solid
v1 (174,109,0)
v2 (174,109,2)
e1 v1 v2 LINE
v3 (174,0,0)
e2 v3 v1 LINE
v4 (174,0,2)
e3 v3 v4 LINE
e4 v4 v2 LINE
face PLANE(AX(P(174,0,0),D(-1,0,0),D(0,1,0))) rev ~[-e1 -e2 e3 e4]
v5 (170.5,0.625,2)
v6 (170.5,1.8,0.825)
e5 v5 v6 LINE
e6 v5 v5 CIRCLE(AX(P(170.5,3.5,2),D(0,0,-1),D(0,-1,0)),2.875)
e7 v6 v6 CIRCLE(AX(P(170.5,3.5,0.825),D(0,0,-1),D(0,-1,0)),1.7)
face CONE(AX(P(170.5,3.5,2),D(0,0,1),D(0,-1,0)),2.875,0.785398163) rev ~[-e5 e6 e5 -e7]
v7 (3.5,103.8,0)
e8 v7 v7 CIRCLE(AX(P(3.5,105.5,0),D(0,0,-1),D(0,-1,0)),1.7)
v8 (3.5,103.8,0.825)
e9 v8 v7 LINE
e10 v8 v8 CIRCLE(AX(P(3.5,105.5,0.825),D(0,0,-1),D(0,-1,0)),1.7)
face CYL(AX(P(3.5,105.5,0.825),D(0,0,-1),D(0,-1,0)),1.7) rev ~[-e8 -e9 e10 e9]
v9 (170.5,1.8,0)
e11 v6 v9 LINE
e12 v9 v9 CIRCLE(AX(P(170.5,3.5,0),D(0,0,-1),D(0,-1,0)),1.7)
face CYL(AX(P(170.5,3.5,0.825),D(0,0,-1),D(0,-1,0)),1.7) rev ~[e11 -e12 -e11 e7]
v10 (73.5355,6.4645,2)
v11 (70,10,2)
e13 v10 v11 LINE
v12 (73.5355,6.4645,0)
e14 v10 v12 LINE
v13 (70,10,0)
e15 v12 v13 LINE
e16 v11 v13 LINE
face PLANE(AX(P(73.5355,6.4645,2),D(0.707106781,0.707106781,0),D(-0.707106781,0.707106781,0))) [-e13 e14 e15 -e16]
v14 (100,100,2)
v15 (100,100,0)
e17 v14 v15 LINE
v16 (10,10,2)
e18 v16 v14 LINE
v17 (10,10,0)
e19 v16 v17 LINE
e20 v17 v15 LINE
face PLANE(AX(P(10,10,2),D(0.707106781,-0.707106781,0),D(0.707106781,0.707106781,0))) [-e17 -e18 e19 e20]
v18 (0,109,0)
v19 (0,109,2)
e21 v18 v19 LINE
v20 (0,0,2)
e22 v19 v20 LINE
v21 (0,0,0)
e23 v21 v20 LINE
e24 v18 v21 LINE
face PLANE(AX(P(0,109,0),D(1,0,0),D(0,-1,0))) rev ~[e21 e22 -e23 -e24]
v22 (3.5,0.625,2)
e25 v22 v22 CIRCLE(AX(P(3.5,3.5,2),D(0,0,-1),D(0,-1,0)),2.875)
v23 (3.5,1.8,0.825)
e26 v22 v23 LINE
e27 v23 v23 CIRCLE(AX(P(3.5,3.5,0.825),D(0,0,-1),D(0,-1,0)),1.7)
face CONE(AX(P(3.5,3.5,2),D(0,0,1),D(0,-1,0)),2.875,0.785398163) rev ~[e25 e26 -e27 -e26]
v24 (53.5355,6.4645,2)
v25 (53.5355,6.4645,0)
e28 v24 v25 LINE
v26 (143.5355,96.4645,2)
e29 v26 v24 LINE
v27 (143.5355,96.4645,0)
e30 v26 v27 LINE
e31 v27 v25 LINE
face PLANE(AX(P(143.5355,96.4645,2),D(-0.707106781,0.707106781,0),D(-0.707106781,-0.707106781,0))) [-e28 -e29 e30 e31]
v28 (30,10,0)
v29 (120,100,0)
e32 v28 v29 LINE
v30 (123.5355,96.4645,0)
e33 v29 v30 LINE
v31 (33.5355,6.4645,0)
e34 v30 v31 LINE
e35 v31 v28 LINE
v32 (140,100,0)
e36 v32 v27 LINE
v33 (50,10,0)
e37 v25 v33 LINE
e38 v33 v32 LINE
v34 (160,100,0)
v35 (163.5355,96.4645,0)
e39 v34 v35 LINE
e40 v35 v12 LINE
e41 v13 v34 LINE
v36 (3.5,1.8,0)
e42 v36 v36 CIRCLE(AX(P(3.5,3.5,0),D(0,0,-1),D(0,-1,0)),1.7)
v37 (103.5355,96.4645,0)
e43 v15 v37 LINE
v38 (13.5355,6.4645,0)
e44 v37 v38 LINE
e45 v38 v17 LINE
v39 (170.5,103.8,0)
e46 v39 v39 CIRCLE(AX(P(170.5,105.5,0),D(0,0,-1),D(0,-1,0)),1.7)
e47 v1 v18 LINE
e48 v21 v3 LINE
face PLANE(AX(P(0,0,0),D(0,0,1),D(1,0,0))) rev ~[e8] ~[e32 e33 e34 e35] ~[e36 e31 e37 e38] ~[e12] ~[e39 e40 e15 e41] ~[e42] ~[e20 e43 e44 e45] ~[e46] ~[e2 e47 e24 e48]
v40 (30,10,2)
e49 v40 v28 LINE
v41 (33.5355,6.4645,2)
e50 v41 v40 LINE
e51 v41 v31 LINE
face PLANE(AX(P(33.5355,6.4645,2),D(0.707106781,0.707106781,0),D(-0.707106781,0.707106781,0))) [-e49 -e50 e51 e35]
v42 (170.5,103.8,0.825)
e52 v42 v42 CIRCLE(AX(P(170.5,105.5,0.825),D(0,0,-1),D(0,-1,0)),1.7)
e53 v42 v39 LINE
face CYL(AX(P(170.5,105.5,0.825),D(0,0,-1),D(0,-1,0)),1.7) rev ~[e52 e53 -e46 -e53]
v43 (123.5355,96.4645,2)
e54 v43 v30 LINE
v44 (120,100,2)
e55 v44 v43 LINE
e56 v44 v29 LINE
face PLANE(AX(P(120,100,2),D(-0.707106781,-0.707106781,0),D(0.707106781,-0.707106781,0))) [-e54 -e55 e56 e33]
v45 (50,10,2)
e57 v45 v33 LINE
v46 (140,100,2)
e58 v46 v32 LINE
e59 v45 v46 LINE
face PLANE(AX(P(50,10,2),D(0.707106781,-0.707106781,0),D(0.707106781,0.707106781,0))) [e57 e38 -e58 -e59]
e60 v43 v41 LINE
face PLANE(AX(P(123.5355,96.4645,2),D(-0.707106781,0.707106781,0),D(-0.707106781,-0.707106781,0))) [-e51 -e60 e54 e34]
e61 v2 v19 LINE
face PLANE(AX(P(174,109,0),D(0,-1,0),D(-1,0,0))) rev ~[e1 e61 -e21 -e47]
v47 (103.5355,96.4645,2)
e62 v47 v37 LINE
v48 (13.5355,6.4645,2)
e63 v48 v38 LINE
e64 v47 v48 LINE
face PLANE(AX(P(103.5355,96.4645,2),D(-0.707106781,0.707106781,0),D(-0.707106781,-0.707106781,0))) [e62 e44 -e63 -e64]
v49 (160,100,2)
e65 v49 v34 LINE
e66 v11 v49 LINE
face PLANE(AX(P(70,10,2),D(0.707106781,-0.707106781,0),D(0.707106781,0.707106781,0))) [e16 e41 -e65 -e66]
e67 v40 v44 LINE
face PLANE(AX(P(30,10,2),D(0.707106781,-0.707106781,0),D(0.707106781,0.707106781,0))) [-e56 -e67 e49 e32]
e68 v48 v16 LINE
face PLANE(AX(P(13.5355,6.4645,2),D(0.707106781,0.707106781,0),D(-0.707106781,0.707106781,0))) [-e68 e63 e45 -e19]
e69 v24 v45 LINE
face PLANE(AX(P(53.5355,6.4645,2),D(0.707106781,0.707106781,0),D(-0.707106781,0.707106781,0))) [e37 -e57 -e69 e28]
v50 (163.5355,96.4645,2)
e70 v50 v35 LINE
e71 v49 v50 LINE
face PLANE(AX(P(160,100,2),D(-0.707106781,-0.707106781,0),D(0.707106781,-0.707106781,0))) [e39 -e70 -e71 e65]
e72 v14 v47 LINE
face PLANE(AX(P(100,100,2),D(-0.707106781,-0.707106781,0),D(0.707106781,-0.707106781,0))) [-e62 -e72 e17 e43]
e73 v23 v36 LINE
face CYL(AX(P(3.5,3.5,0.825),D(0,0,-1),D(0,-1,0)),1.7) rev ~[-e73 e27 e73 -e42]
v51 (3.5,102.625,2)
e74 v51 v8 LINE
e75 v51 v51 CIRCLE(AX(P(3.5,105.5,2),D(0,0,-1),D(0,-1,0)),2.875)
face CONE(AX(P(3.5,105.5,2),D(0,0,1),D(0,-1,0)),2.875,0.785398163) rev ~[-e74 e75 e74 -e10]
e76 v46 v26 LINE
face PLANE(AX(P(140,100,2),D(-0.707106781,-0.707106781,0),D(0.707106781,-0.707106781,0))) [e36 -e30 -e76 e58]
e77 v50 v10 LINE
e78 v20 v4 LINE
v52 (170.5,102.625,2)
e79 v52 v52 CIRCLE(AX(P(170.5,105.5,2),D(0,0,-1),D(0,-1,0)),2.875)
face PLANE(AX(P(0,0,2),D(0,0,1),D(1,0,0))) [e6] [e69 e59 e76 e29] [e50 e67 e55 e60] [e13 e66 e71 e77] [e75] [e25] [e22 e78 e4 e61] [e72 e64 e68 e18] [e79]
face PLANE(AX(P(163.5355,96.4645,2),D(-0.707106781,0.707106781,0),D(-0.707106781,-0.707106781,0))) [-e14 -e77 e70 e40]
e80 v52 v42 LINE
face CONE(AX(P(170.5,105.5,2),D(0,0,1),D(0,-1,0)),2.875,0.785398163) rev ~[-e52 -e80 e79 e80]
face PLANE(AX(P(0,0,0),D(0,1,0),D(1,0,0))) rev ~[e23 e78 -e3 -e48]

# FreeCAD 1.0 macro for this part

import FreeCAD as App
import Part
import Sketcher

V = App.Vector
Q = App.Units.Quantity

doc = App.newDocument("Part")
body = doc.addObject("PartDesign::Body", "Body")

# Sketch on XY plane
sketch1 = body.newObject("Sketcher::SketchObject", "Sketch")
sketch1.AttachmentSupport = (doc.getObject("XY_Plane"), [""])
sketch1.MapMode = "FlatFace"
sketch1.addGeometry([
    Part.LineSegment(V(0, 109, 0), V(0, 0, 0)),
    Part.LineSegment(V(0, 0, 0), V(174, 0, 0)),
    Part.LineSegment(V(174, 0, 0), V(174, 109, 0)),
    Part.LineSegment(V(174, 109, 0), V(0, 109, 0)),
], False)
sketch1.addConstraint([
    Sketcher.Constraint("Coincident", 0, 2, 1, 1),
    Sketcher.Constraint("Coincident", 1, 2, 2, 1),
    Sketcher.Constraint("Coincident", 2, 2, 3, 1),
    Sketcher.Constraint("Coincident", 3, 2, 0, 1),
    Sketcher.Constraint("Vertical", 0),
    Sketcher.Constraint("Horizontal", 1),
    Sketcher.Constraint("Vertical", 2),
    Sketcher.Constraint("Horizontal", 3),
    Sketcher.Constraint("Coincident", 0, 2, -1, 1),
    Sketcher.Constraint("DistanceX", 1, 1, 1, 2, Q("174 mm")),
    Sketcher.Constraint("DistanceY", 0, 2, 0, 1, Q("109 mm")),
])
pad1 = body.newObject("PartDesign::Pad", "Pad")
pad1.Profile = sketch1
pad1.Length = 2

# Sketch on XY plane
sketch2 = body.newObject("Sketcher::SketchObject", "Sketch001")
sketch2.AttachmentSupport = (doc.getObject("XY_Plane"), [""])
sketch2.MapMode = "FlatFace"
sketch2.AttachmentOffset = App.Placement(V(0, 0, 2), App.Rotation())
sketch2.addGeometry([
    Part.Circle(V(170.5, 3.5, 0), V(0, 0, 1), 1.7),
    Part.Circle(V(3.5, 105.5, 0), V(0, 0, 1), 1.7),
    Part.Circle(V(3.5, 3.5, 0), V(0, 0, 1), 1.7),
    Part.Circle(V(170.5, 105.5, 0), V(0, 0, 1), 1.7),
], False)
sketch2.addConstraint([
    Sketcher.Constraint("Equal", 0, 1),
    Sketcher.Constraint("Equal", 1, 2),
    Sketcher.Constraint("Equal", 2, 3),
    Sketcher.Constraint("Horizontal", 0, 3, 2, 3),
    Sketcher.Constraint("Horizontal", 1, 3, 3, 3),
    Sketcher.Constraint("Vertical", 1, 3, 2, 3),
    Sketcher.Constraint("Vertical", 0, 3, 3, 3),
    Sketcher.Constraint("Diameter", 0, Q("3.4 mm")),
    Sketcher.Constraint("DistanceX", 1, 3, 0, 3, Q("167 mm")),
    Sketcher.Constraint("DistanceY", 0, 3, 1, 3, Q("102 mm")),
    Sketcher.Constraint("DistanceX", -1, 1, 0, 3, Q("170.5 mm")),
    Sketcher.Constraint("DistanceY", -1, 1, 0, 3, Q("3.5 mm")),
])
doc.recompute()
hole = body.newObject("PartDesign::Hole", "Hole")
hole.Profile = sketch2
hole.ThreadType = "None"
hole.Diameter = 3.4
hole.DepthType = "Dimension"
hole.Depth = 6
hole.DrillPoint = "Flat"
hole.HoleCutType = "Countersink"
hole.HoleCutDiameter = 5.75
hole.HoleCutCountersinkAngle = 90

# Sketch on XY plane
sketch3 = body.newObject("Sketcher::SketchObject", "Sketch002")
sketch3.AttachmentSupport = (doc.getObject("XY_Plane"), [""])
sketch3.MapMode = "FlatFace"
sketch3.AttachmentOffset = App.Placement(V(0, 0, 2), App.Rotation())
sketch3.addGeometry([
    Part.LineSegment(V(100, 100, 0), V(10, 10, 0)),  # 0
    Part.LineSegment(V(10, 10, 0), V(13.5, 6.5, 0)),  # 1
    Part.LineSegment(V(13.5, 6.5, 0), V(103.5, 96.5, 0)),  # 2
    Part.LineSegment(V(103.5, 96.5, 0), V(100, 100, 0)),  # 3
    Part.LineSegment(V(120, 100, 0), V(30, 10, 0)),  # 4
    Part.LineSegment(V(30, 10, 0), V(33.5, 6.5, 0)),  # 5
    Part.LineSegment(V(33.5, 6.5, 0), V(123.5, 96.5, 0)),  # 6
    Part.LineSegment(V(123.5, 96.5, 0), V(120, 100, 0)),  # 7
    Part.LineSegment(V(140, 100, 0), V(50, 10, 0)),  # 8
    Part.LineSegment(V(50, 10, 0), V(53.5, 6.5, 0)),  # 9
    Part.LineSegment(V(53.5, 6.5, 0), V(143.5, 96.5, 0)),  # 10
    Part.LineSegment(V(143.5, 96.5, 0), V(140, 100, 0)),  # 11
    Part.LineSegment(V(160, 100, 0), V(70, 10, 0)),  # 12
    Part.LineSegment(V(70, 10, 0), V(73.5, 6.5, 0)),  # 13
    Part.LineSegment(V(73.5, 6.5, 0), V(163.5, 96.5, 0)),  # 14
    Part.LineSegment(V(163.5, 96.5, 0), V(160, 100, 0)),  # 15
], False)
sketch3.addConstraint([
    Sketcher.Constraint("Coincident", 0, 2, 1, 1),
    Sketcher.Constraint("Coincident", 1, 2, 2, 1),
    Sketcher.Constraint("Coincident", 2, 2, 3, 1),
    Sketcher.Constraint("Coincident", 3, 2, 0, 1),
    Sketcher.Constraint("Coincident", 4, 2, 5, 1),
    Sketcher.Constraint("Coincident", 5, 2, 6, 1),
    Sketcher.Constraint("Coincident", 6, 2, 7, 1),
    Sketcher.Constraint("Coincident", 7, 2, 4, 1),
    Sketcher.Constraint("Coincident", 8, 2, 9, 1),
    Sketcher.Constraint("Coincident", 9, 2, 10, 1),
    Sketcher.Constraint("Coincident", 10, 2, 11, 1),
    Sketcher.Constraint("Coincident", 11, 2, 8, 1),
    Sketcher.Constraint("Coincident", 12, 2, 13, 1),
    Sketcher.Constraint("Coincident", 13, 2, 14, 1),
    Sketcher.Constraint("Coincident", 14, 2, 15, 1),
    Sketcher.Constraint("Coincident", 15, 2, 12, 1),
    Sketcher.Constraint("Perpendicular", 0, 1),
    Sketcher.Constraint("Perpendicular", 1, 2),
    Sketcher.Constraint("Perpendicular", 2, 3),
    Sketcher.Constraint("Perpendicular", 3, 4),
    Sketcher.Constraint("Perpendicular", 4, 5),
    Sketcher.Constraint("Perpendicular", 5, 6),
    Sketcher.Constraint("Perpendicular", 6, 7),
    Sketcher.Constraint("Perpendicular", 7, 8),
    Sketcher.Constraint("Perpendicular", 8, 9),
    Sketcher.Constraint("Perpendicular", 9, 10),
    Sketcher.Constraint("Perpendicular", 10, 11),
    Sketcher.Constraint("Perpendicular", 11, 12),
    Sketcher.Constraint("Perpendicular", 12, 13),
    Sketcher.Constraint("Perpendicular", 13, 14),
    Sketcher.Constraint("Perpendicular", 14, 15),
    Sketcher.Constraint("Horizontal", 0, 2, 4, 2),
    Sketcher.Constraint("Horizontal", 1, 2, 5, 2),
    Sketcher.Constraint("Horizontal", 2, 2, 6, 2),
    Sketcher.Constraint("Horizontal", 4, 2, 8, 2),
    Sketcher.Constraint("Horizontal", 5, 2, 9, 2),
    Sketcher.Constraint("Horizontal", 6, 2, 10, 2),
    Sketcher.Constraint("Horizontal", 8, 2, 12, 2),
    Sketcher.Constraint("Horizontal", 9, 2, 13, 2),
    Sketcher.Constraint("Horizontal", 10, 2, 14, 2),
    Sketcher.Constraint("Distance", 1, Q("5 mm")),
    Sketcher.Constraint("DistanceX", 2, 2, 14, 2, Q("60 mm")),
    Sketcher.Constraint("Angle", 0, Q("-135 deg")),
    Sketcher.Constraint("DistanceX", -1, 1, 0, 2, Q("10 mm")),
    Sketcher.Constraint("DistanceY", -1, 1, 0, 2, Q("10 mm")),
    Sketcher.Constraint("DistanceX", -1, 1, 3, 2, Q("100 mm")),
    Sketcher.Constraint("DistanceX", -1, 1, 4, 2, Q("30 mm")),
    Sketcher.Constraint("DistanceX", -1, 1, 8, 2, Q("50 mm")),
])
pocket1 = body.newObject("PartDesign::Pocket", "Pocket")
pocket1.Profile = sketch3
pocket1.Length = 40

doc.recompute()
